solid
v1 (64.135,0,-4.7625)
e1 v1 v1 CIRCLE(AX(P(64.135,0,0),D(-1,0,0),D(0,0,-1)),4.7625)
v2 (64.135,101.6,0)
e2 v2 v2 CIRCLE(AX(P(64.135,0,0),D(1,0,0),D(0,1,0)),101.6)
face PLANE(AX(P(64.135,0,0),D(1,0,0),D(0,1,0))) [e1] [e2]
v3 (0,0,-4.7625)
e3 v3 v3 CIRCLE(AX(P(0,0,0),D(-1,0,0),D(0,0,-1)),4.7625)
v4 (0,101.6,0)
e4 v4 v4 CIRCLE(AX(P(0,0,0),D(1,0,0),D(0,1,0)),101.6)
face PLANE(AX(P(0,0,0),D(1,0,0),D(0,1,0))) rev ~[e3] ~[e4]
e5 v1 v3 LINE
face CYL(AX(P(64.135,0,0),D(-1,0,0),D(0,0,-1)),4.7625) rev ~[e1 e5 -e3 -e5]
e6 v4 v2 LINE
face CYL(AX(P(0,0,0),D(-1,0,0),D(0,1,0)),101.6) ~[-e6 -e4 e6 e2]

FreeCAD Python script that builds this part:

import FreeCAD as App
import Part
import Sketcher

V = App.Vector
Q = App.Units.Quantity

doc = App.newDocument("Part")
body = doc.addObject("PartDesign::Body", "Body")

# Sketch on YZ plane
sketch1 = body.newObject("Sketcher::SketchObject", "Sketch")
sketch1.AttachmentSupport = (doc.getObject("YZ_Plane"), [""])
sketch1.MapMode = "FlatFace"
sketch1.addGeometry(Part.Circle(V(0, 0, 0), V(0, 0, 1), 102), False)
sketch1.addConstraint(Sketcher.Constraint("Coincident", 0, 3, -1, 1))
sketch1.addConstraint(Sketcher.Constraint("Diameter", 0, Q("8 in")))
pad1 = body.newObject("PartDesign::Pad", "Pad")
pad1.Profile = sketch1
pad1.Length = Q("2.525 in")

# Sketch on YZ plane
sketch2 = body.newObject("Sketcher::SketchObject", "Sketch001")
sketch2.AttachmentSupport = (doc.getObject("YZ_Plane"), [""])
sketch2.MapMode = "FlatFace"
sketch2.AttachmentOffset = App.Placement(V(0, 0, 2.525 * 25.4), App.Rotation())
sketch2.addGeometry(Part.Circle(V(0, 0, 0), V(0, 0, 1), 4.8), False)
sketch2.addConstraint(Sketcher.Constraint("Coincident", 0, 3, -1, 1))
sketch2.addConstraint(Sketcher.Constraint("Diameter", 0, Q("0.375 in")))
doc.recompute()
hole = body.newObject("PartDesign::Hole", "Hole")
hole.Profile = sketch2
hole.ThreadType = "None"
hole.Diameter = Q("0.375 in")
hole.DepthType = "ThroughAll"

doc.recompute()
